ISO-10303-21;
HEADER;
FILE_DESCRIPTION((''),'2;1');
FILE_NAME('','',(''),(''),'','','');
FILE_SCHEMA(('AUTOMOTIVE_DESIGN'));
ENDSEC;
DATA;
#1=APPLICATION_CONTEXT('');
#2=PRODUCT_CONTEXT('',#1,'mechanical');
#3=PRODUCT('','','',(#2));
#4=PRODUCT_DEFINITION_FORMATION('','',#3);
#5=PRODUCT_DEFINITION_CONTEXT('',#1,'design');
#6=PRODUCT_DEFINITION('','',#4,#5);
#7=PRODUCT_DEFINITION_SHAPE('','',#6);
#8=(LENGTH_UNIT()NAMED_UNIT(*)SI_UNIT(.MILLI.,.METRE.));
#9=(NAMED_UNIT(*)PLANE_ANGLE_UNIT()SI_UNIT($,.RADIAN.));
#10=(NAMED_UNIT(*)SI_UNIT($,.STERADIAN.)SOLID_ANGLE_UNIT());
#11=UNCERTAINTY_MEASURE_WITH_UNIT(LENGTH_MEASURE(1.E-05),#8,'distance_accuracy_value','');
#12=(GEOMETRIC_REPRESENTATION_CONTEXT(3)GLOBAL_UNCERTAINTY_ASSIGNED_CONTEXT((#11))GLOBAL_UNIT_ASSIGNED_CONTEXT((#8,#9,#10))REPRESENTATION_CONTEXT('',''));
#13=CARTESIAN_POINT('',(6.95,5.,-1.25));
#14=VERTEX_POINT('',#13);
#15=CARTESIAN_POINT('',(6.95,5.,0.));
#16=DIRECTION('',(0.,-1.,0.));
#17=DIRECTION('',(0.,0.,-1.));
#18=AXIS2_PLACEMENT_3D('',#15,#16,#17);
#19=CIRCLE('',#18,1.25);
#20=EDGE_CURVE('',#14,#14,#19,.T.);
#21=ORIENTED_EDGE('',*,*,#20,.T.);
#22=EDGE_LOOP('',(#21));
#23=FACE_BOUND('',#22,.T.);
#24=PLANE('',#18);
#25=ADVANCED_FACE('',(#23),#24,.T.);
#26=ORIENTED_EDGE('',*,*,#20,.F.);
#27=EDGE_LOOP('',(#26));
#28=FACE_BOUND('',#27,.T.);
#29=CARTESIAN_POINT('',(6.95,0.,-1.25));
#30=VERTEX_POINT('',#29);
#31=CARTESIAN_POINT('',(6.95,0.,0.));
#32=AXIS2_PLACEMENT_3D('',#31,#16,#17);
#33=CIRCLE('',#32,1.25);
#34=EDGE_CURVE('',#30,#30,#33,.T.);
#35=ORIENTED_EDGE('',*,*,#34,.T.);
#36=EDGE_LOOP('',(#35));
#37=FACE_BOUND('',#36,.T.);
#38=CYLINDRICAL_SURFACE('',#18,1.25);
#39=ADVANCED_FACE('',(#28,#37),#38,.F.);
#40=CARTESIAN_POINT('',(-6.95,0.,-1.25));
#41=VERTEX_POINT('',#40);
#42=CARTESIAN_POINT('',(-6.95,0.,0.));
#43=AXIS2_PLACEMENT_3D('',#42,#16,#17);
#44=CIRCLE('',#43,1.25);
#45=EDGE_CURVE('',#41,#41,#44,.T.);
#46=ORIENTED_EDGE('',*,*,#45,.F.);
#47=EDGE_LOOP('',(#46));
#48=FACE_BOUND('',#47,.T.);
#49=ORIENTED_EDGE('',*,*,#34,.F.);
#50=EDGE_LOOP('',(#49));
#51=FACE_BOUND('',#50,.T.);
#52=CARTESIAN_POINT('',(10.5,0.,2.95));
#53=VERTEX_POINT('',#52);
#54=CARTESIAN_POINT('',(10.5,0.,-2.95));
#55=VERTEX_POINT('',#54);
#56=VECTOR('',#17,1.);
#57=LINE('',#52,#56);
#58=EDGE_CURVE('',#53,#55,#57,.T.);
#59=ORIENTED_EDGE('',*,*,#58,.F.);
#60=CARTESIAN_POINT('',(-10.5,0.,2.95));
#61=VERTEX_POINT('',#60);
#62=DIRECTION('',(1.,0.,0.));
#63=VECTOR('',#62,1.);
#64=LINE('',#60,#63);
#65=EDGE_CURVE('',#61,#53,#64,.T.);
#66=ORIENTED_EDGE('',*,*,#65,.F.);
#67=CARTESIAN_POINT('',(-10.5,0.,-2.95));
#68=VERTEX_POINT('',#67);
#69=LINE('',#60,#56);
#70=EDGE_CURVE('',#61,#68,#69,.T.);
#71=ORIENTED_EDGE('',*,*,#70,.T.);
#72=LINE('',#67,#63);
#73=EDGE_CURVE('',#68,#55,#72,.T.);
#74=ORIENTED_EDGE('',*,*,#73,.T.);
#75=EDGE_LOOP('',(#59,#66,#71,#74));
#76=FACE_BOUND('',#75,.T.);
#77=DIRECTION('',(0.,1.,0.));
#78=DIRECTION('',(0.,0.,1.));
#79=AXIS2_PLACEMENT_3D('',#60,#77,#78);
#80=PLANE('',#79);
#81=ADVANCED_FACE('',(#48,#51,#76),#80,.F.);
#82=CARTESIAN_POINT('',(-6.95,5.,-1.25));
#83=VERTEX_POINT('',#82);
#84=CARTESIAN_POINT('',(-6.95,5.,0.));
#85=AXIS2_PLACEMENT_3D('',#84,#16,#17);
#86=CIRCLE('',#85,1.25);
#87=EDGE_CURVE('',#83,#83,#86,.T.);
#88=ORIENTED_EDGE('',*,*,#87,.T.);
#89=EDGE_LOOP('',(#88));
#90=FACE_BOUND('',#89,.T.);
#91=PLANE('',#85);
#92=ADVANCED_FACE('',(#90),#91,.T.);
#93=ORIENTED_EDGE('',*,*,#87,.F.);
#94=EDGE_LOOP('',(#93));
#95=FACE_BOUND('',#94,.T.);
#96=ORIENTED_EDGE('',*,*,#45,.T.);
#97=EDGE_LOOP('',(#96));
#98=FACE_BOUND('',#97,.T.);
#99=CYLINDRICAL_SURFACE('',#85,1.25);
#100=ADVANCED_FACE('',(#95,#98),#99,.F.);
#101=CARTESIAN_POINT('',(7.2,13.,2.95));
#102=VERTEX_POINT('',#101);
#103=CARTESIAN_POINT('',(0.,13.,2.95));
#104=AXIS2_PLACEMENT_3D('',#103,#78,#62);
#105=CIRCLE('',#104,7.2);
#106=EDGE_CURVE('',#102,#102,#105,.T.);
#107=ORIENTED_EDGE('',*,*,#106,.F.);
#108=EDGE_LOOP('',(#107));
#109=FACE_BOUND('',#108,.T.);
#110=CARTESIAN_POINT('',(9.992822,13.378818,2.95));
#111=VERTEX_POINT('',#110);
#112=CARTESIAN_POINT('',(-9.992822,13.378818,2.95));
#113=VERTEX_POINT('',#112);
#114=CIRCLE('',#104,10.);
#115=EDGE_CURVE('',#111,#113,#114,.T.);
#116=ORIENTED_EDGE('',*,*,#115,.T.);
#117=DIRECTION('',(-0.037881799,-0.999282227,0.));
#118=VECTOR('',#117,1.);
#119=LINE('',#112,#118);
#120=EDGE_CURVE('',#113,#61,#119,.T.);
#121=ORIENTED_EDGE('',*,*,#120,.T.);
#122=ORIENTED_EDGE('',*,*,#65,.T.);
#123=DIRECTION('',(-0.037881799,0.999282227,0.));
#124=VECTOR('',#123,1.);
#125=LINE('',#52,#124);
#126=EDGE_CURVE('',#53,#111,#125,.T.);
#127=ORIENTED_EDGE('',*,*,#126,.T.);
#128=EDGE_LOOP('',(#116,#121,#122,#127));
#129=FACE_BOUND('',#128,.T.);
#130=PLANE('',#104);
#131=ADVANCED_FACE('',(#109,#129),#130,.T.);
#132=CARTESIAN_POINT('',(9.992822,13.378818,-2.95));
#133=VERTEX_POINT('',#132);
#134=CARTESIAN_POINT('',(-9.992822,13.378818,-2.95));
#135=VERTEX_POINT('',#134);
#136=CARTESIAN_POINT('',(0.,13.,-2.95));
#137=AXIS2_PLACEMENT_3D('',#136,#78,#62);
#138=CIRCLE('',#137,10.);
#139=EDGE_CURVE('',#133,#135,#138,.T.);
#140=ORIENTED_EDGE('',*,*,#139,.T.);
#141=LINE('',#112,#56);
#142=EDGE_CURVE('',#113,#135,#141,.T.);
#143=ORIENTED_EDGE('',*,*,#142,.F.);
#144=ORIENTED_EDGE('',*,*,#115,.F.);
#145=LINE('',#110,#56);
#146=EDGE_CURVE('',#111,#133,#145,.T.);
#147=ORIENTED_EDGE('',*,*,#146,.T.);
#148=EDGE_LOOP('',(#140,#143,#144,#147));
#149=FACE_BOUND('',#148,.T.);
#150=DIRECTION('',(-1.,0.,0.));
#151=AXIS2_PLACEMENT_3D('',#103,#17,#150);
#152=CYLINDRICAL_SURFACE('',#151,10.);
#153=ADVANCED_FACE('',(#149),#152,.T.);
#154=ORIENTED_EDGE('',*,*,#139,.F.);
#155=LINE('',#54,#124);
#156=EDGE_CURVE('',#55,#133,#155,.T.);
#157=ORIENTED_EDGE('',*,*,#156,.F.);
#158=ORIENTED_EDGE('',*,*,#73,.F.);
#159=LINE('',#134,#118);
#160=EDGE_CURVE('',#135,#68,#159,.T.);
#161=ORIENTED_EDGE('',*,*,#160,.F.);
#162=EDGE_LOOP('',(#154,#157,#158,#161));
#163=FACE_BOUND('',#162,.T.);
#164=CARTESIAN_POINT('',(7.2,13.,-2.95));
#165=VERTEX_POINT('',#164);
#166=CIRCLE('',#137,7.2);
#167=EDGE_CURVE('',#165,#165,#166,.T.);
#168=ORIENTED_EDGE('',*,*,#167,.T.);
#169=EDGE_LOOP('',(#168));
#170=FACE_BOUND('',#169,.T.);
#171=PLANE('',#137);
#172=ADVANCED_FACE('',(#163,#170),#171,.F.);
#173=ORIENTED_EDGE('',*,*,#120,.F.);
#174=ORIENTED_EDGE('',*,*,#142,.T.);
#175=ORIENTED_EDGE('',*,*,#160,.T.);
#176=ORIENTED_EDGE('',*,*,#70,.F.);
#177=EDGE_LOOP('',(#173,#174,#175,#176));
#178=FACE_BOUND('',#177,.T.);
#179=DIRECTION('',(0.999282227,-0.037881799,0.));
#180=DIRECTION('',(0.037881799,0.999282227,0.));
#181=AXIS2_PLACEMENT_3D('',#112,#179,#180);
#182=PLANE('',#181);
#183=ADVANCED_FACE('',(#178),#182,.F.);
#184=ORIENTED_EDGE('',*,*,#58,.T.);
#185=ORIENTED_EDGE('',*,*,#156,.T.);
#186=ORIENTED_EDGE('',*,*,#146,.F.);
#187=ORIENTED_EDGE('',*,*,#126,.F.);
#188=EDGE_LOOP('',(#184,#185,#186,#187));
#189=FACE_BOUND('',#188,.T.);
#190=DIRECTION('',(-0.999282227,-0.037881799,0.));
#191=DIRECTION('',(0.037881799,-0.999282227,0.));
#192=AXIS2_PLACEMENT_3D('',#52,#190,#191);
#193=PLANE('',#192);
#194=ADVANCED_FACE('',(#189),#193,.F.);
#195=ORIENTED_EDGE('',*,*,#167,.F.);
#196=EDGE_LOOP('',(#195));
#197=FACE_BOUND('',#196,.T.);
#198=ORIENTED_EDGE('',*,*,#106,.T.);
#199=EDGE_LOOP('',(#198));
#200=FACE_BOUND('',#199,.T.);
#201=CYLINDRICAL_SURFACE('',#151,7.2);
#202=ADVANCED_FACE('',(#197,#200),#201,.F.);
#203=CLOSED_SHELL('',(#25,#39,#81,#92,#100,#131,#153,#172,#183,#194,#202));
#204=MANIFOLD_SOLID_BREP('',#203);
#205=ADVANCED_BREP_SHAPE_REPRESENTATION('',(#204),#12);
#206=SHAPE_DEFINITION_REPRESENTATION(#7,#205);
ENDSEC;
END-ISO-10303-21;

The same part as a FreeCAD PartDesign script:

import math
import FreeCAD as App
import Part
import Sketcher

V = App.Vector
Q = App.Units.Quantity

doc = App.newDocument("Part")
body = doc.addObject("PartDesign::Body", "Body")

sketch1 = body.newObject("Sketcher::SketchObject", "Sketch")
sketch1.AttachmentSupport = (doc.getObject("XY_Plane"), [""])
sketch1.MapMode = "FlatFace"
sketch1.addGeometry(Part.LineSegment(V(-9.992822, 13.378818, 0), V(-10.5, 0, 0)), False)
sketch1.addGeometry(Part.LineSegment(V(-10.5, 0, 0), V(10.5, 0, 0)), False)
sketch1.addGeometry(Part.LineSegment(V(10.5, 0, 0), V(9.992822, 13.378818, 0)), False)
sketch1.addGeometry(Part.ArcOfCircle(Part.Circle(V(0, 13, 0), V(0, 0, 1), 10), math.radians(2.170987), math.radians(177.829013)), False)
sketch1.addGeometry(Part.Circle(V(0, 13, 0), V(0, 0, 1), 7.2), False)
sketch1.addConstraint(Sketcher.Constraint("Coincident", 0, 2, 1, 1))
sketch1.addConstraint(Sketcher.Constraint("Coincident", 1, 2, 2, 1))
sketch1.addConstraint(Sketcher.Constraint("Tangent", 2, 2, 3, 1))
sketch1.addConstraint(Sketcher.Constraint("Tangent", 3, 2, 0, 1))
sketch1.addConstraint(Sketcher.Constraint("Horizontal", 1))
sketch1.addConstraint(Sketcher.Constraint("Coincident", 4, 3, 3, 3))
sketch1.addConstraint(Sketcher.Constraint("Symmetric", 0, 2, 1, 2, -1, 1))
sketch1.addConstraint(Sketcher.Constraint("PointOnObject", 3, 3, -2))
sketch1.addConstraint(Sketcher.Constraint("Radius", 3, Q("10 mm")))
sketch1.addConstraint(Sketcher.Constraint("Diameter", 4, Q("14.4 mm")))
sketch1.addConstraint(Sketcher.Constraint("DistanceX", 1, 1, 1, 2, Q("21 mm")))
sketch1.addConstraint(Sketcher.Constraint("DistanceY", -1, 1, 3, 3, Q("13 mm")))
pad1 = body.newObject("PartDesign::Pad", "Pad")
pad1.Profile = sketch1
pad1.Length = 5.9
pad1.Midplane = True

sketch2 = body.newObject("Sketcher::SketchObject", "Sketch001")
sketch2.AttachmentSupport = (doc.getObject("XZ_Plane"), [""])
sketch2.MapMode = "FlatFace"
sketch2.addGeometry(Part.Circle(V(-6.95, 0, 0), V(0, 0, 1), 1.25), False)
sketch2.addGeometry(Part.Circle(V(6.95, 0, 0), V(0, 0, 1), 1.25), False)
sketch2.addConstraint(Sketcher.Constraint("Equal", 0, 1))
sketch2.addConstraint(Sketcher.Constraint("Symmetric", 0, 3, 1, 3, -1, 1))
sketch2.addConstraint(Sketcher.Constraint("PointOnObject", 0, 3, -1))
sketch2.addConstraint(Sketcher.Constraint("Diameter", 0, Q("2.5 mm")))
sketch2.addConstraint(Sketcher.Constraint("DistanceX", 0, 3, 1, 3, Q("13.9 mm")))
pocket1 = body.newObject("PartDesign::Pocket", "Pocket")
pocket1.Profile = sketch2
pocket1.Length = 5

doc.recompute()
